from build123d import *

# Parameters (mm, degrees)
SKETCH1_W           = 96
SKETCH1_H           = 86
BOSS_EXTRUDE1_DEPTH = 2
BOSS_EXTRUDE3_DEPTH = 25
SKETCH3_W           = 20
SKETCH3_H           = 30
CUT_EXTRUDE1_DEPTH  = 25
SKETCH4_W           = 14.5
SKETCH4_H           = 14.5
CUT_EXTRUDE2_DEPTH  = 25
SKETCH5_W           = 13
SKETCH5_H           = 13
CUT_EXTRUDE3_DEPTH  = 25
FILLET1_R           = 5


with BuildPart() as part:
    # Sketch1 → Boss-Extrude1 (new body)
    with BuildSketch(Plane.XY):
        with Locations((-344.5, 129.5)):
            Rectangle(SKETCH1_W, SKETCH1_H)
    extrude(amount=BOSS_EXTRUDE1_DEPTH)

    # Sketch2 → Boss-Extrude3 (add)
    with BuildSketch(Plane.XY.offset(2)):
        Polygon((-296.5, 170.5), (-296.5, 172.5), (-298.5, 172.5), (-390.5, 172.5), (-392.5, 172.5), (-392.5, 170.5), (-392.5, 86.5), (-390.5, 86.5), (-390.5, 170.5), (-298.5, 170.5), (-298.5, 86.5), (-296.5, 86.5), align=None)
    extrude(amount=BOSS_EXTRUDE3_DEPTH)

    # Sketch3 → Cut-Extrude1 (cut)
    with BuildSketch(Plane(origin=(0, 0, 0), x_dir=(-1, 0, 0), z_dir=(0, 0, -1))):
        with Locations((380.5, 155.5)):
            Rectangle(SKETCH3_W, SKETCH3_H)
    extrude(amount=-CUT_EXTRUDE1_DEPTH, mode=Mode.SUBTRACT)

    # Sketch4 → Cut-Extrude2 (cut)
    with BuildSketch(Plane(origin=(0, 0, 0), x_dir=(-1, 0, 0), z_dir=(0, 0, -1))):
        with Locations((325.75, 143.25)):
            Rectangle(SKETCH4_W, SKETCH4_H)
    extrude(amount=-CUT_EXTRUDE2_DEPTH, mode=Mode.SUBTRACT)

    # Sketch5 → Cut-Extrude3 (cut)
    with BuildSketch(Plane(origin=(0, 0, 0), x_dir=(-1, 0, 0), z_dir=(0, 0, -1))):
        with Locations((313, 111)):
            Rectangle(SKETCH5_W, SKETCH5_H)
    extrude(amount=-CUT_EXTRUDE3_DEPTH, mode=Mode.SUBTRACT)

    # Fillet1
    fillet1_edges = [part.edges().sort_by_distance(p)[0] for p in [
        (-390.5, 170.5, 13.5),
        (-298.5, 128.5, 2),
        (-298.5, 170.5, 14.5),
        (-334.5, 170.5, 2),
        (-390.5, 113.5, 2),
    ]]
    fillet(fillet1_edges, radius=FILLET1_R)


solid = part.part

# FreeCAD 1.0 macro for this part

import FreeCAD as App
import Part
import Sketcher
Q = App.Units.Quantity


def edges_at(feature, points):
    """Names of the edges that pass closest to the given points."""
    edges = feature.Shape.Edges
    near = lambda p: min(range(len(edges)), key=lambda i: edges[i].distToShape(Part.Vertex(*p))[0])
    return sorted({f"Edge{near(p) + 1}" for p in points})


def add_polygon(sketch, points):
    """Adds a closed chain of lines whose ends are joined by coincident constraints."""
    first, n = sketch.GeometryCount, len(points)
    for a, b in zip(points, points[1:] + points[:1]):
        sketch.addGeometry(Part.LineSegment(App.Vector(*a, 0), App.Vector(*b, 0)), False)
    for i in range(n):
        sketch.addConstraint(Sketcher.Constraint("Coincident", first + i, 2, first + (i + 1) % n, 1))

doc = App.newDocument("Part")
params = doc.addObject("Spreadsheet::Sheet", "Params")
for row, (alias, value) in enumerate([
    ("sketch1_width", "96 mm"),
    ("sketch1_height", "86 mm"),
    ("pad1_length", "2 mm"),
    ("sketch2_width", "96 mm"),
    ("sketch2_width2", "2 mm"),
    ("sketch2_height", "86 mm"),
    ("sketch2_height2", "84 mm"),
    ("pad2_length", "25 mm"),
    ("sketch3_width", "20 mm"),
    ("sketch3_height", "30 mm"),
    ("pocket1_length", "25 mm"),
    ("sketch4_width", "14.5 mm"),
    ("pocket2_length", "25 mm"),
    ("sketch5_width", "13 mm"),
    ("pocket3_length", "25 mm"),
    ("fillet_radius", "5 mm"),
], start=1):
    params.set(f"A{row}", alias)
    params.set(f"B{row}", "=" + value)
    params.setAlias(f"B{row}", alias)

body = doc.addObject("PartDesign::Body", "Body")

sketch1 = body.newObject("Sketcher::SketchObject", "Sketch")
sketch1.AttachmentSupport = (doc.getObject("XY_Plane"), [""])
sketch1.MapMode = "FlatFace"
add_polygon(sketch1, [(-392, 172), (-392, 86), (-296, 86), (-296, 172)])
sketch1.addConstraint([
    Sketcher.Constraint("Vertical", 0),
    Sketcher.Constraint("Horizontal", 1),
    Sketcher.Constraint("Vertical", 2),
    Sketcher.Constraint("Horizontal", 3),
    Sketcher.Constraint("DistanceX", 1, 1, 1, 2, Q("96 mm")),
    Sketcher.Constraint("DistanceY", 0, 2, 0, 1, Q("86 mm")),
    Sketcher.Constraint("DistanceX", 0, 2, -1, 1, Q("392.5 mm")),
    Sketcher.Constraint("DistanceY", -1, 1, 0, 2, Q("86.5 mm")),
])
sketch1.setExpression("Constraints[8]", "Params.sketch1_width")
sketch1.setExpression("Constraints[9]", "Params.sketch1_height")
pad1 = body.newObject("PartDesign::Pad", "Pad")
pad1.Profile = sketch1
pad1.setExpression("Length", "Params.pad1_length")

sketch2 = body.newObject("Sketcher::SketchObject", "Sketch001")
sketch2.AttachmentSupport = (doc.getObject("XY_Plane"), [""])
sketch2.MapMode = "FlatFace"
sketch2.AttachmentOffset = App.Placement(App.Vector(0, 0, 2), App.Rotation())
add_polygon(sketch2, [(-296.5, 172.5), (-392.5, 172.5), (-392.5, 86.5), (-390.5, 86.5), (-390.5, 170.5), (-298.5, 170.5), (-298.5, 86.5), (-296.5, 86.5)])
sketch2.addConstraint([
    Sketcher.Constraint("Horizontal", 0),
    Sketcher.Constraint("Vertical", 1),
    Sketcher.Constraint("Horizontal", 2),
    Sketcher.Constraint("Vertical", 3),
    Sketcher.Constraint("Horizontal", 4),
    Sketcher.Constraint("Vertical", 5),
    Sketcher.Constraint("Horizontal", 6),
    Sketcher.Constraint("Vertical", 7),
    Sketcher.Constraint("Horizontal", 2, 2, 5, 2),
    Sketcher.Constraint("Equal", 2, 6),
    Sketcher.Constraint("DistanceX", 0, 2, 0, 1, Q("96 mm")),
    Sketcher.Constraint("DistanceX", 2, 1, 2, 2, Q("2 mm")),
    Sketcher.Constraint("DistanceY", 1, 2, 1, 1, Q("86 mm")),
    Sketcher.Constraint("DistanceY", 3, 1, 3, 2, Q("84 mm")),
    Sketcher.Constraint("DistanceX", 0, 2, -1, 1, Q("392.5 mm")),
    Sketcher.Constraint("DistanceY", -1, 1, 0, 2, Q("172.5 mm")),
])
sketch2.setExpression("Constraints[18]", "Params.sketch2_width")
sketch2.setExpression("Constraints[19]", "Params.sketch2_width2")
sketch2.setExpression("Constraints[20]", "Params.sketch2_height")
sketch2.setExpression("Constraints[21]", "Params.sketch2_height2")
pad2 = body.newObject("PartDesign::Pad", "Pad001")
pad2.Profile = sketch2
pad2.setExpression("Length", "Params.pad2_length")

sketch3 = body.newObject("Sketcher::SketchObject", "Sketch002")
sketch3.AttachmentSupport = (doc.getObject("XY_Plane"), [""])
sketch3.MapMode = "FlatFace"
add_polygon(sketch3, [(-370, 170), (-370, 140), (-390, 140), (-390, 170)])
sketch3.addConstraint([
    Sketcher.Constraint("Vertical", 0),
    Sketcher.Constraint("Horizontal", 1),
    Sketcher.Constraint("Vertical", 2),
    Sketcher.Constraint("Horizontal", 3),
    Sketcher.Constraint("DistanceX", 1, 2, 1, 1, Q("20 mm")),
    Sketcher.Constraint("DistanceY", 0, 2, 0, 1, Q("30 mm")),
    Sketcher.Constraint("DistanceX", 0, 2, -1, 1, Q("370.5 mm")),
    Sketcher.Constraint("DistanceY", -1, 1, 0, 2, Q("140.5 mm")),
])
sketch3.setExpression("Constraints[8]", "Params.sketch3_width")
sketch3.setExpression("Constraints[9]", "Params.sketch3_height")
pocket1 = body.newObject("PartDesign::Pocket", "Pocket")
pocket1.Profile = sketch3
pocket1.setExpression("Length", "Params.pocket1_length")
pocket1.Reversed = True

sketch4 = body.newObject("Sketcher::SketchObject", "Sketch003")
sketch4.AttachmentSupport = (doc.getObject("XY_Plane"), [""])
sketch4.MapMode = "FlatFace"
add_polygon(sketch4, [(-318, 150), (-318, 136), (-333, 136), (-333, 150)])
sketch4.addConstraint([
    Sketcher.Constraint("Vertical", 0),
    Sketcher.Constraint("Horizontal", 1),
    Sketcher.Constraint("Vertical", 2),
    Sketcher.Constraint("Horizontal", 3),
    Sketcher.Constraint("Equal", 3, 0),
    Sketcher.Constraint("DistanceX", 1, 2, 1, 1, Q("14.5 mm")),
    Sketcher.Constraint("DistanceY", -1, 1, 0, 2, Q("136 mm")),
    Sketcher.Constraint("DistanceX", 1, 2, -1, 1, Q("333 mm")),
])
sketch4.setExpression("Constraints[9]", "Params.sketch4_width")
pocket2 = body.newObject("PartDesign::Pocket", "Pocket001")
pocket2.Profile = sketch4
pocket2.setExpression("Length", "Params.pocket2_length")
pocket2.Reversed = True

sketch5 = body.newObject("Sketcher::SketchObject", "Sketch004")
sketch5.AttachmentSupport = (doc.getObject("XY_Plane"), [""])
sketch5.MapMode = "FlatFace"
add_polygon(sketch5, [(-306, 118), (-306, 104), (-320, 104), (-320, 118)])
sketch5.addConstraint([
    Sketcher.Constraint("Vertical", 0),
    Sketcher.Constraint("Horizontal", 1),
    Sketcher.Constraint("Vertical", 2),
    Sketcher.Constraint("Horizontal", 3),
    Sketcher.Constraint("Equal", 3, 0),
    Sketcher.Constraint("DistanceX", 1, 2, 1, 1, Q("13 mm")),
    Sketcher.Constraint("DistanceX", 0, 2, -1, 1, Q("306.5 mm")),
    Sketcher.Constraint("DistanceY", -1, 1, 0, 2, Q("104.5 mm")),
])
sketch5.setExpression("Constraints[9]", "Params.sketch5_width")
pocket3 = body.newObject("PartDesign::Pocket", "Pocket002")
pocket3.Profile = sketch5
pocket3.setExpression("Length", "Params.pocket3_length")
pocket3.Reversed = True
doc.recompute()

fillet = body.newObject("PartDesign::Fillet", "Fillet")
fillet.Base = (pocket3, edges_at(pocket3, [
    (-390.5, 170.5, 13.5),
    (-298.5, 128.5, 2),
    (-298.5, 170.5, 14.5),
    (-334.5, 170.5, 2),
    (-390.5, 113.5, 2),
]))
fillet.setExpression("Radius", "Params.fillet_radius")

doc.recompute()
